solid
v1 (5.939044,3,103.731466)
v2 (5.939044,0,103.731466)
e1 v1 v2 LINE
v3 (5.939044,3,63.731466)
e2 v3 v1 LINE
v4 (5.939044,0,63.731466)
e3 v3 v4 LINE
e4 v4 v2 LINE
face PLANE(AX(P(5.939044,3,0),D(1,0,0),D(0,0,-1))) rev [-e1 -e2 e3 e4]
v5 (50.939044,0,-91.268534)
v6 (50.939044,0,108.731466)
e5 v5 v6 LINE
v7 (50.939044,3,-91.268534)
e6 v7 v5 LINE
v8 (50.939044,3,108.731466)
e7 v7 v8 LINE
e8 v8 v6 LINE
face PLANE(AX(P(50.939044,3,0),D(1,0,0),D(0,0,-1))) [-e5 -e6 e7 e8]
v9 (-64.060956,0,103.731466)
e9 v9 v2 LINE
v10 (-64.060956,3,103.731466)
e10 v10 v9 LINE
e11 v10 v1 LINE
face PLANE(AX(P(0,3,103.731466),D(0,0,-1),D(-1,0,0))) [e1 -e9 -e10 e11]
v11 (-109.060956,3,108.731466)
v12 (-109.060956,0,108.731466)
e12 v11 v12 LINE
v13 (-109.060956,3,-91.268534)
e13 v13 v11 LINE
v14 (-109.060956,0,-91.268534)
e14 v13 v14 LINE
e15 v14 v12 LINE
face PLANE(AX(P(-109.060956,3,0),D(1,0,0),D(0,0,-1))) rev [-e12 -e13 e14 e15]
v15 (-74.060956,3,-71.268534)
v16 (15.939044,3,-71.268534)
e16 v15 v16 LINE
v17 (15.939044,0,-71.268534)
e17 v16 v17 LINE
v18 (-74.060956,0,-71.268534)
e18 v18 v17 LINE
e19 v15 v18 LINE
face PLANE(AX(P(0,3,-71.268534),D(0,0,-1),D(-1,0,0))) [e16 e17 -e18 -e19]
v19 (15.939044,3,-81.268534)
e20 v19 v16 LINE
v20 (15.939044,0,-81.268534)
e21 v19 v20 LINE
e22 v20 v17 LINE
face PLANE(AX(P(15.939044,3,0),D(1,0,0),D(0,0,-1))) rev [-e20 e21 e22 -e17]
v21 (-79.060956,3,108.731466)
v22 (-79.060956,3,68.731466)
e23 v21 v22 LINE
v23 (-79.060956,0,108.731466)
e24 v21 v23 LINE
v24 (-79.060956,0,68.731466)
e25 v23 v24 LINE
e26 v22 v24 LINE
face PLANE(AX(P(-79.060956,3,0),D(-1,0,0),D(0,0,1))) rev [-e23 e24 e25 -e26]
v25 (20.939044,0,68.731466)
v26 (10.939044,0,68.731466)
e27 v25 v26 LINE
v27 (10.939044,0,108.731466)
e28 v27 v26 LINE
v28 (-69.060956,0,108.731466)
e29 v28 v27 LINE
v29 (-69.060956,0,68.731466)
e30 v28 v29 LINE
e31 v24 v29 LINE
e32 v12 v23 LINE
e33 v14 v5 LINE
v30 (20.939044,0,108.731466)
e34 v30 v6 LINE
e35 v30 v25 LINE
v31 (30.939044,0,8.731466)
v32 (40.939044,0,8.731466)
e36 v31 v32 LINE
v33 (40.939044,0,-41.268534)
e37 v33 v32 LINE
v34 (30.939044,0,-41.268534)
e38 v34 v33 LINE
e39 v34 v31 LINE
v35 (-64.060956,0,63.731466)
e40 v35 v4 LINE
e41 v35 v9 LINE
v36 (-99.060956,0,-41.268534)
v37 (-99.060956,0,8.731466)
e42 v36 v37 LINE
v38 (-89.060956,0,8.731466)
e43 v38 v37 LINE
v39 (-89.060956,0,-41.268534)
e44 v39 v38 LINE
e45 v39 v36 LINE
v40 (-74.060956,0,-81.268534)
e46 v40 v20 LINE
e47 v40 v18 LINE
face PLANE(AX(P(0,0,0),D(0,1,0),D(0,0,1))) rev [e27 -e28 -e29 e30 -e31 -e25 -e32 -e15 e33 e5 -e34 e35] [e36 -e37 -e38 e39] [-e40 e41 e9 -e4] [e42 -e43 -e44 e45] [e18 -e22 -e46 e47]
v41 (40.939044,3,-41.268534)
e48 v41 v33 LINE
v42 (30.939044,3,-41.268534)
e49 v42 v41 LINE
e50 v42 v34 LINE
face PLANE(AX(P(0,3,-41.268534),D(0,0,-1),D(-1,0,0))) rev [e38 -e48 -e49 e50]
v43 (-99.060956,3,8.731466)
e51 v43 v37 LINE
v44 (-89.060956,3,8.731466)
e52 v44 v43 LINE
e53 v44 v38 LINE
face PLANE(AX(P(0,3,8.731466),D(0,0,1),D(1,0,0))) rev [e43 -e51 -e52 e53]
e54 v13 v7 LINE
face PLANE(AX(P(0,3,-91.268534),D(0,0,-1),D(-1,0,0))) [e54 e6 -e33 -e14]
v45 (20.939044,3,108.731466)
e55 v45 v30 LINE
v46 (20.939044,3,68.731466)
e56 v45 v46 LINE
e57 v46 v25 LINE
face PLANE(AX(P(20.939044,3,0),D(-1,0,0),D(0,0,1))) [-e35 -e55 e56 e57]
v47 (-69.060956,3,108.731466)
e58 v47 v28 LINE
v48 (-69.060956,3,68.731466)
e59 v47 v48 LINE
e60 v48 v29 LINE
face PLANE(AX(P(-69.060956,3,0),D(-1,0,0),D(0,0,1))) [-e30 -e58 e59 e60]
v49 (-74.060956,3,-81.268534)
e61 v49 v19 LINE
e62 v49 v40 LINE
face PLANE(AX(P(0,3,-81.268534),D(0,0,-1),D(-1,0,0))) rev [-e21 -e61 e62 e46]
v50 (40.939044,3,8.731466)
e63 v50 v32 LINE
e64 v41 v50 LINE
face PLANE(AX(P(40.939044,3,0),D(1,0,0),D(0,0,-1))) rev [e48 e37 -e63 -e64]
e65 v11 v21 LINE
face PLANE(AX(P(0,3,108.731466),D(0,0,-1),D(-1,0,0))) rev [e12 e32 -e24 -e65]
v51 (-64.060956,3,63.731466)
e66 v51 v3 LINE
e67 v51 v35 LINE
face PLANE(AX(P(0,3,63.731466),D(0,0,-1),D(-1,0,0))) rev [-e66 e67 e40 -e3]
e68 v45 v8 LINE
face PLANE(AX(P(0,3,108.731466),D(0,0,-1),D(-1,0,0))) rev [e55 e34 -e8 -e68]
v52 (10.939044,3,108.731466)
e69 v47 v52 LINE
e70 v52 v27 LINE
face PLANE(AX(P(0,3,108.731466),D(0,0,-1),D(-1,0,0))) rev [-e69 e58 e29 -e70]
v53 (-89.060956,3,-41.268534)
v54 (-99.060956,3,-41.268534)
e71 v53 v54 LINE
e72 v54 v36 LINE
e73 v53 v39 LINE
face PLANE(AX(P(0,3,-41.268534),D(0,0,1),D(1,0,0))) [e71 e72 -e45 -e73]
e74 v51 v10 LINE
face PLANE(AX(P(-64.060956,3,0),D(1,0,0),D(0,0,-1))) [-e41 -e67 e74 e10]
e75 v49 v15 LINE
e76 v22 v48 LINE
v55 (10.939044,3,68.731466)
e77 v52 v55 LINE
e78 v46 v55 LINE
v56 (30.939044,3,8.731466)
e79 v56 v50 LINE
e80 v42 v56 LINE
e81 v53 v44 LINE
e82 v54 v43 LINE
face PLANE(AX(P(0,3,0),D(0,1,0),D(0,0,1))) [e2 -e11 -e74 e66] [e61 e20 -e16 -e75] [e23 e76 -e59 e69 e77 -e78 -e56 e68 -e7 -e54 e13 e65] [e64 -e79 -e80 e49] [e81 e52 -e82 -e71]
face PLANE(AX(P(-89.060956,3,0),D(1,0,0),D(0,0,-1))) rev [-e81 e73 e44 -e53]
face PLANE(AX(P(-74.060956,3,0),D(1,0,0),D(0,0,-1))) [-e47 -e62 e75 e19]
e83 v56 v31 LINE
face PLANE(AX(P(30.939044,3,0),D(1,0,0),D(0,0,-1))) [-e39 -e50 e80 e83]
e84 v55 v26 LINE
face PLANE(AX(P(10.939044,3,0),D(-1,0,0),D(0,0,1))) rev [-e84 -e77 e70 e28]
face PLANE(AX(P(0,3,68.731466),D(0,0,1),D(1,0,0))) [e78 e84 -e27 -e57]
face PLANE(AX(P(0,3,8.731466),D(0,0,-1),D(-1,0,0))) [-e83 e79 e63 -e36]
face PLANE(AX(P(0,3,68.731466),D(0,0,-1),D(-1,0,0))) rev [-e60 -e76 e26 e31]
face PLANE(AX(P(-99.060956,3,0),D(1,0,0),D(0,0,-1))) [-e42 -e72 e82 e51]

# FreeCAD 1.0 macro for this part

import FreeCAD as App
import Part
import Sketcher

V = App.Vector
Q = App.Units.Quantity


def add_polygon(sketch, points):
    """Adds a closed chain of lines whose ends are joined by coincident constraints."""
    first, n = sketch.GeometryCount, len(points)
    for a, b in zip(points, points[1:] + points[:1]):
        sketch.addGeometry(Part.LineSegment(App.Vector(*a, 0), App.Vector(*b, 0)), False)
    for i in range(n):
        sketch.addConstraint(Sketcher.Constraint("Coincident", first + i, 2, first + (i + 1) % n, 1))

doc = App.newDocument("Part")
body = doc.addObject("PartDesign::Body", "Body")

# Sketch on XZ plane
sketch1 = body.newObject("Sketcher::SketchObject", "Sketch")
sketch1.AttachmentSupport = (doc.getObject("XZ_Plane"), [""])
sketch1.MapMode = "FlatFace"
add_polygon(sketch1, [(51, -91), (-109, -91), (-109, 109), (-79, 109), (-79, 69), (-69, 69), (-69, 109), (11, 109), (11, 69), (21, 69), (21, 109), (51, 109)])  # lines 0-11
add_polygon(sketch1, [(16, -81), (16, -71), (-74, -71), (-74, -81)])  # lines 12-15
add_polygon(sketch1, [(6, 64), (6, 104), (-64, 104), (-64, 64)])  # lines 16-19
add_polygon(sketch1, [(41, 9), (31, 9), (31, -41), (41, -41)])  # lines 20-23
add_polygon(sketch1, [(-99, 9), (-99, -41), (-89, -41), (-89, 9)])  # lines 24-27
sketch1.addConstraint([
    Sketcher.Constraint("Horizontal", 0),
    Sketcher.Constraint("Vertical", 1),
    Sketcher.Constraint("Horizontal", 2),
    Sketcher.Constraint("Vertical", 3),
    Sketcher.Constraint("Horizontal", 4),
    Sketcher.Constraint("Vertical", 5),
    Sketcher.Constraint("Horizontal", 6),
    Sketcher.Constraint("Vertical", 7),
    Sketcher.Constraint("Horizontal", 8),
    Sketcher.Constraint("Vertical", 9),
    Sketcher.Constraint("Horizontal", 10),
    Sketcher.Constraint("Vertical", 11),
    Sketcher.Constraint("Vertical", 12),
    Sketcher.Constraint("Horizontal", 13),
    Sketcher.Constraint("Vertical", 14),
    Sketcher.Constraint("Horizontal", 15),
    Sketcher.Constraint("Vertical", 16),
    Sketcher.Constraint("Horizontal", 17),
    Sketcher.Constraint("Vertical", 18),
    Sketcher.Constraint("Horizontal", 19),
    Sketcher.Constraint("Horizontal", 20),
    Sketcher.Constraint("Vertical", 21),
    Sketcher.Constraint("Horizontal", 22),
    Sketcher.Constraint("Vertical", 23),
    Sketcher.Constraint("Vertical", 24),
    Sketcher.Constraint("Horizontal", 25),
    Sketcher.Constraint("Vertical", 26),
    Sketcher.Constraint("Horizontal", 27),
    Sketcher.Constraint("Horizontal", 2, 2, 5, 2),
    Sketcher.Constraint("Horizontal", 4, 2, 7, 2),
    Sketcher.Constraint("Horizontal", 6, 2, 9, 2),
    Sketcher.Constraint("Horizontal", 22, 2, 24, 2),
    Sketcher.Constraint("Horizontal", 23, 2, 26, 2),
    Sketcher.Constraint("Equal", 4, 8),
    Sketcher.Constraint("Equal", 2, 10),
    Sketcher.Constraint("Equal", 8, 20),
    Sketcher.Constraint("Equal", 22, 25),
    Sketcher.Constraint("Equal", 27, 12),
    Sketcher.Constraint("Equal", 9, 16),
    Sketcher.Constraint("DistanceX", 0, 2, 0, 1, Q("160 mm")),
    Sketcher.Constraint("DistanceX", 2, 1, 2, 2, Q("30 mm")),
    Sketcher.Constraint("DistanceX", 4, 1, 4, 2, Q("10 mm")),
    Sketcher.Constraint("DistanceX", 13, 2, 13, 1, Q("90 mm")),
    Sketcher.Constraint("DistanceX", 17, 2, 17, 1, Q("70 mm")),
    Sketcher.Constraint("DistanceY", 1, 1, 1, 2, Q("200 mm")),
    Sketcher.Constraint("DistanceY", 3, 2, 3, 1, Q("40 mm")),
    Sketcher.Constraint("DistanceY", 21, 2, 21, 1, Q("50 mm")),
    Sketcher.Constraint("DistanceX", 12, 2, 11, 2, Q("35 mm")),
    Sketcher.Constraint("DistanceY", 11, 2, 12, 2, Q("20 mm")),
    Sketcher.Constraint("DistanceX", 16, 2, 6, 2, Q("5 mm")),
    Sketcher.Constraint("DistanceY", 16, 2, 6, 2, Q("5 mm")),
    Sketcher.Constraint("DistanceX", 19, 2, 20, 2, Q("25 mm")),
    Sketcher.Constraint("DistanceY", 20, 2, 19, 2, Q("55 mm")),
    Sketcher.Constraint("DistanceX", 24, 2, 13, 2, Q("25 mm")),
    Sketcher.Constraint("DistanceX", 0, 2, -1, 1, Q("109.060956 mm")),
    Sketcher.Constraint("DistanceY", 0, 2, -1, 1, Q("91.268534 mm")),
])
pad1 = body.newObject("PartDesign::Pad", "Pad")
pad1.Profile = sketch1
pad1.Length = 3
pad1.Reversed = True

doc.recompute()
